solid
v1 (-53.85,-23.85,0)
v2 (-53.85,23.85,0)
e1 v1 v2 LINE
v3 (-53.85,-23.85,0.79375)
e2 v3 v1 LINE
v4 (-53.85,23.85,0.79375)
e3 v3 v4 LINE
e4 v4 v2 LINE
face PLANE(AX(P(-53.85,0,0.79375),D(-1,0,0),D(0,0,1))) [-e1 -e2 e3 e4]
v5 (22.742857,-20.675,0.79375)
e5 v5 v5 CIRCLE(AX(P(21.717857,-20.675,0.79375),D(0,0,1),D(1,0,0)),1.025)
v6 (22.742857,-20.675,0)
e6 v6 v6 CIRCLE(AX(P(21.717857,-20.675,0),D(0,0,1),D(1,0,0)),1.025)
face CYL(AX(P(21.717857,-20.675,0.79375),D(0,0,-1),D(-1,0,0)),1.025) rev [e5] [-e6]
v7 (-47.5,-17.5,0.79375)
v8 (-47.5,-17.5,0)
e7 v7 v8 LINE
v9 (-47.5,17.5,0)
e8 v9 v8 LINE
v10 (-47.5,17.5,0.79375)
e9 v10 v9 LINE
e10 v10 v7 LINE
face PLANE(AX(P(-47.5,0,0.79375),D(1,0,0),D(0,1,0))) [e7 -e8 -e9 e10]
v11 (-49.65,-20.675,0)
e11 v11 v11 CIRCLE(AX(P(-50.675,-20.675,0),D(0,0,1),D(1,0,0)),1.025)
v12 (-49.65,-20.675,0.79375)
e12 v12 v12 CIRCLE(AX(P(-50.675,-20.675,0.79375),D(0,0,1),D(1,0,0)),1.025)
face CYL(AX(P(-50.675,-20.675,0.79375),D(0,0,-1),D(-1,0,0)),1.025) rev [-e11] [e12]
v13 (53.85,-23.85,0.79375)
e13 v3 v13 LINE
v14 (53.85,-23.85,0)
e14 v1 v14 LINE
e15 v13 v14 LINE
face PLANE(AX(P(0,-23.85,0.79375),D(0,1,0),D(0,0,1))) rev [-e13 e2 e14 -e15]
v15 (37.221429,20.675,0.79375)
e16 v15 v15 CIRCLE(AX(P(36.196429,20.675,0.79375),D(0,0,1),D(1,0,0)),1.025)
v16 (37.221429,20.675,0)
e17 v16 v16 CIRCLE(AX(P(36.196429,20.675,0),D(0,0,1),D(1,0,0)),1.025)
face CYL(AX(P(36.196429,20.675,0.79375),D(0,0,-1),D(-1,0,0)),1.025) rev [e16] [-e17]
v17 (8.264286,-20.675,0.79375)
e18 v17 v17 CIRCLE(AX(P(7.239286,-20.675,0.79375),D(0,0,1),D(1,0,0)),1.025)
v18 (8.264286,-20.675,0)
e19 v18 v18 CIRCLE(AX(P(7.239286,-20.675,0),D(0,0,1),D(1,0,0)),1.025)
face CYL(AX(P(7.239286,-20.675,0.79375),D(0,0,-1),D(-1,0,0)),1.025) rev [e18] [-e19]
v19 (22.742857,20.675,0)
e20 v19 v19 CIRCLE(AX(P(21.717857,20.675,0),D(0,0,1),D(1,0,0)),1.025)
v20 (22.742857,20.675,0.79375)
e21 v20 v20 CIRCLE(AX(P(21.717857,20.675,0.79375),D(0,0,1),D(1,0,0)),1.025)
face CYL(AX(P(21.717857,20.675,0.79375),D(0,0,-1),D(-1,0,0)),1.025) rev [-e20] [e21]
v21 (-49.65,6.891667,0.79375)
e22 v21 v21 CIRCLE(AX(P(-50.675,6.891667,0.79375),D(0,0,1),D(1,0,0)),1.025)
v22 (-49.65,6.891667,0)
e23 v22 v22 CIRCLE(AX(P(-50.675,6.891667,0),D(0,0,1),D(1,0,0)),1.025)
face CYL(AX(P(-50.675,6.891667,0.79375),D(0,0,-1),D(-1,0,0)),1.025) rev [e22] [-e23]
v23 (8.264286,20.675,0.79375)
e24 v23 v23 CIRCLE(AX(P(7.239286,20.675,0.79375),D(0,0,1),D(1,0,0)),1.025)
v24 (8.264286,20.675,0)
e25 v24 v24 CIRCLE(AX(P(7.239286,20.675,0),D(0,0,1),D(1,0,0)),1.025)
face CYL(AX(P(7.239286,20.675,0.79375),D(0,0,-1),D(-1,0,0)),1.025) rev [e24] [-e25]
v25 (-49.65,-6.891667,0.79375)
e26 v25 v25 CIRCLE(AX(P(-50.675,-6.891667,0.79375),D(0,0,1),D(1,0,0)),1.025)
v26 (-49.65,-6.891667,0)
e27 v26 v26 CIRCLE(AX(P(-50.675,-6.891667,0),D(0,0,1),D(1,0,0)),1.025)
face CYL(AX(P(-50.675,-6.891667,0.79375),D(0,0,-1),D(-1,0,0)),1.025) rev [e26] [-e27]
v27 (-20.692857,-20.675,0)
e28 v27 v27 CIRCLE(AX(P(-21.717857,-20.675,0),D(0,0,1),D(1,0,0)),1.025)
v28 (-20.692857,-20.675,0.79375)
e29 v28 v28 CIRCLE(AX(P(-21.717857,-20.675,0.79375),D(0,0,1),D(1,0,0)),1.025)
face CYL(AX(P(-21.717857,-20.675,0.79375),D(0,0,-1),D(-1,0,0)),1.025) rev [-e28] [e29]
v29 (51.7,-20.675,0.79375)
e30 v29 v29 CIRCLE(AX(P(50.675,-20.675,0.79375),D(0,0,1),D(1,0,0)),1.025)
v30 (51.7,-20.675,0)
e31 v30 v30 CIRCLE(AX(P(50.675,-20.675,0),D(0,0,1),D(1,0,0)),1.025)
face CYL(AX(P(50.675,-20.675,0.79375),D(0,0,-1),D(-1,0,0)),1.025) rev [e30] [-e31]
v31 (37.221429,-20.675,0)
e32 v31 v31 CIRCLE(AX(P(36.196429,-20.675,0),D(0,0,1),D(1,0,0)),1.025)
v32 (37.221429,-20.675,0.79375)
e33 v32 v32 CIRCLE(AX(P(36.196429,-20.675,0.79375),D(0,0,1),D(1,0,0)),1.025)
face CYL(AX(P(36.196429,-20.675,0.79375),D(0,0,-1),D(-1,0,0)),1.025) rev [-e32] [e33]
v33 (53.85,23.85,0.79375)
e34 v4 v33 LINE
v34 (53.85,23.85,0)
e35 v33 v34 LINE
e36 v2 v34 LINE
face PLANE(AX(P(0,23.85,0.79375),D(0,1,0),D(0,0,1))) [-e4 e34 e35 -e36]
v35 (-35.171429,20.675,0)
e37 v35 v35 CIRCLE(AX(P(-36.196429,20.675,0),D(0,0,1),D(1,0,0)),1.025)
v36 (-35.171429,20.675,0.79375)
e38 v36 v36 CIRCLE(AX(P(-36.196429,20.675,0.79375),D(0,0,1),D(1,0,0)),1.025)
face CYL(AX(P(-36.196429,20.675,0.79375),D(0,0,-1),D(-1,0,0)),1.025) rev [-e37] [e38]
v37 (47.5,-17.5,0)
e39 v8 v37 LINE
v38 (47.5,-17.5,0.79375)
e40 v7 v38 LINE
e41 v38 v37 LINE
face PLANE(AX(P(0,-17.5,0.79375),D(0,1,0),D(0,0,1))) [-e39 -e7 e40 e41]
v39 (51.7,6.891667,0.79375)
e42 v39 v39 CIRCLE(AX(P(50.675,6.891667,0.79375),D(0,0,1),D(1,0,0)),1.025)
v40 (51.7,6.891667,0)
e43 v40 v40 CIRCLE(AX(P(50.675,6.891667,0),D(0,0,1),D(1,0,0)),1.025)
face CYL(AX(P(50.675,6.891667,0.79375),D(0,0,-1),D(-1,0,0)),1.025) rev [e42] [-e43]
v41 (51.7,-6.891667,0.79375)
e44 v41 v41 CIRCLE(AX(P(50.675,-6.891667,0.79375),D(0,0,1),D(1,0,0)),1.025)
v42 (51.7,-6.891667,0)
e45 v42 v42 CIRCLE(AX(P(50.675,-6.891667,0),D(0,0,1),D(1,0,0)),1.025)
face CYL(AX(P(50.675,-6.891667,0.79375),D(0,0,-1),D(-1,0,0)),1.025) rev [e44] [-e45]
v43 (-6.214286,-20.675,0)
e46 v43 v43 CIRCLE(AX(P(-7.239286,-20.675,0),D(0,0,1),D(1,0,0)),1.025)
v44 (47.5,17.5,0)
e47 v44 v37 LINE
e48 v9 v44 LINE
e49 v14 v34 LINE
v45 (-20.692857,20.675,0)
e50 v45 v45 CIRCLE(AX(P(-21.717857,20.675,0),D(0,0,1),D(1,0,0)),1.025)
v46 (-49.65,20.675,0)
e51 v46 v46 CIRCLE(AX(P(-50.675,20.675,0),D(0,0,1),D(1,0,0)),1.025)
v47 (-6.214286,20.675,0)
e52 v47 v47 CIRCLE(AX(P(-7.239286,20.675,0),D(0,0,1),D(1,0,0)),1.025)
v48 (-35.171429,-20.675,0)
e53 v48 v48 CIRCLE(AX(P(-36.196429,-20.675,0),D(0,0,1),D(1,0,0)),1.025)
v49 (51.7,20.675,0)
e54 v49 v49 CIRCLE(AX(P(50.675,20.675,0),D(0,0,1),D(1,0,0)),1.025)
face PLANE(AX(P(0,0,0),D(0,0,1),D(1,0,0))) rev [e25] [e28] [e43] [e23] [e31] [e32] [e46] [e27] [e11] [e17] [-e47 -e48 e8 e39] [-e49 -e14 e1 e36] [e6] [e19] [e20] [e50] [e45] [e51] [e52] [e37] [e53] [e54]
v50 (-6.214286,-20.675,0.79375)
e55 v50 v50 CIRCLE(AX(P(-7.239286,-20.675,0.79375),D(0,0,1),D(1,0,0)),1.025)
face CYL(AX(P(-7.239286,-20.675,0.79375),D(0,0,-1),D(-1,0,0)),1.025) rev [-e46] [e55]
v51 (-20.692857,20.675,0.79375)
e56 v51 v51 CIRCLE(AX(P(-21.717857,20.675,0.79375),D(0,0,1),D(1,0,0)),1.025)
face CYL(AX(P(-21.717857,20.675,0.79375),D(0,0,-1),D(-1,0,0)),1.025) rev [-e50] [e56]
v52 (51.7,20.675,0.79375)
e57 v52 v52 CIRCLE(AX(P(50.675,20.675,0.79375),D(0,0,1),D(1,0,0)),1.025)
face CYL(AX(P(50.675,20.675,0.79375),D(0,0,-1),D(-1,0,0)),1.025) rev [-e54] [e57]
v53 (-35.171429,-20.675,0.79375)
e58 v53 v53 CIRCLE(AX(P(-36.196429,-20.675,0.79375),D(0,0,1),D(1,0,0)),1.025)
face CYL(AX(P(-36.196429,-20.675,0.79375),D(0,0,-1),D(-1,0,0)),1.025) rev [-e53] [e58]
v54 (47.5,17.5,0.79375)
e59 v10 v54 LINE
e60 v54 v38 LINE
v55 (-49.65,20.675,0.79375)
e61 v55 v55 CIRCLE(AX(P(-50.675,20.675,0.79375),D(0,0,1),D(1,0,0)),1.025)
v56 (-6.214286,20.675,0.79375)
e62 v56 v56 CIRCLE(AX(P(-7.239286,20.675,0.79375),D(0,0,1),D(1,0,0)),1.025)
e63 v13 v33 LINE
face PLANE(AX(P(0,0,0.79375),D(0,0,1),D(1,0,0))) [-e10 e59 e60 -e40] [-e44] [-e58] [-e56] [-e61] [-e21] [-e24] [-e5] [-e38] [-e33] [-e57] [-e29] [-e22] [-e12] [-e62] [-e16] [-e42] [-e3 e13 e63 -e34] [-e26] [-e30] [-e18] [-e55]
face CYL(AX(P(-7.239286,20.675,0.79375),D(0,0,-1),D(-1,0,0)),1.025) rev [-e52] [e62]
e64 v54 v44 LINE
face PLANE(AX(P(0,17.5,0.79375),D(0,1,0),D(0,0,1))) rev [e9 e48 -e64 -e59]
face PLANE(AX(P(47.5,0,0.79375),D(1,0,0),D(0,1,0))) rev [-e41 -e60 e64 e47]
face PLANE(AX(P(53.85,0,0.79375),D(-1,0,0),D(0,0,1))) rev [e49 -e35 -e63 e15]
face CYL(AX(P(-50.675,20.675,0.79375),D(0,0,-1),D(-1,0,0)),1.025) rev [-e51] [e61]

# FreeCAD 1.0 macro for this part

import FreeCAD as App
import Part
import Sketcher
Q = App.Units.Quantity

doc = App.newDocument("Part")
params = doc.addObject("Spreadsheet::Sheet", "Params")
for row, (alias, value) in enumerate([
    ("sketch1_diameter", "2.05 mm"),
    ("sketch1_width", "95 mm"),
    ("sketch1_height", "35 mm"),
    ("sketch1_width2", "107.7 mm"),
    ("sketch1_height2", "47.7 mm"),
    ("pad1_length", "0.79375 mm"),
], start=1):
    params.set(f"A{row}", alias)
    params.set(f"B{row}", "=" + value)
    params.setAlias(f"B{row}", alias)

body = doc.addObject("PartDesign::Body", "Body")

sketch1 = doc.addObject("Sketcher::SketchObject", "Sketch")
body.addObject(sketch1)
sketch1.AttachmentSupport = (doc.XY_Plane, [""])
sketch1.MapMode = "FlatFace"
sketch1.addGeometry([
    Part.LineSegment(App.Vector(-53.85, 23.85, 0), App.Vector(-53.85, -23.85, 0)),
    Part.LineSegment(App.Vector(-53.85, -23.85, 0), App.Vector(53.85, -23.85, 0)),
    Part.LineSegment(App.Vector(53.85, -23.85, 0), App.Vector(53.85, 23.85, 0)),
    Part.LineSegment(App.Vector(53.85, 23.85, 0), App.Vector(-53.85, 23.85, 0)),
    Part.Circle(App.Vector(-50.675, -20.675, 0), App.Vector(0, 0, 1), 1.025),
    Part.Circle(App.Vector(-36.196429, -20.675, 0), App.Vector(0, 0, 1), 1.025),
    Part.Circle(App.Vector(-21.717857, -20.675, 0), App.Vector(0, 0, 1), 1.025),
    Part.Circle(App.Vector(-7.239286, -20.675, 0), App.Vector(0, 0, 1), 1.025),
    Part.Circle(App.Vector(-50.675, -6.891667, 0), App.Vector(0, 0, 1), 1.025),
    Part.Circle(App.Vector(7.239286, -20.675, 0), App.Vector(0, 0, 1), 1.025),
    Part.Circle(App.Vector(21.717857, -20.675, 0), App.Vector(0, 0, 1), 1.025),
    Part.Circle(App.Vector(36.196429, -20.675, 0), App.Vector(0, 0, 1), 1.025),
    Part.Circle(App.Vector(50.675, -20.675, 0), App.Vector(0, 0, 1), 1.025),
    Part.Circle(App.Vector(50.675, -6.891667, 0), App.Vector(0, 0, 1), 1.025),
    Part.Circle(App.Vector(-50.675, 6.891667, 0), App.Vector(0, 0, 1), 1.025),
    Part.Circle(App.Vector(-50.675, 20.675, 0), App.Vector(0, 0, 1), 1.025),
    Part.Circle(App.Vector(-36.196429, 20.675, 0), App.Vector(0, 0, 1), 1.025),
    Part.Circle(App.Vector(-21.717857, 20.675, 0), App.Vector(0, 0, 1), 1.025),
    Part.Circle(App.Vector(-7.239286, 20.675, 0), App.Vector(0, 0, 1), 1.025),
    Part.LineSegment(App.Vector(47.5, -17.5, 0), App.Vector(-47.5, -17.5, 0)),
    Part.LineSegment(App.Vector(-47.5, -17.5, 0), App.Vector(-47.5, 17.5, 0)),
    Part.LineSegment(App.Vector(-47.5, 17.5, 0), App.Vector(47.5, 17.5, 0)),
    Part.LineSegment(App.Vector(47.5, 17.5, 0), App.Vector(47.5, -17.5, 0)),
    Part.Circle(App.Vector(50.675, 6.891667, 0), App.Vector(0, 0, 1), 1.025),
    Part.Circle(App.Vector(7.239286, 20.675, 0), App.Vector(0, 0, 1), 1.025),
    Part.Circle(App.Vector(21.717857, 20.675, 0), App.Vector(0, 0, 1), 1.025),
    Part.Circle(App.Vector(36.196429, 20.675, 0), App.Vector(0, 0, 1), 1.025),
    Part.Circle(App.Vector(50.675, 20.675, 0), App.Vector(0, 0, 1), 1.025),
], False)
sketch1.addConstraint([
    Sketcher.Constraint("Coincident", 0, 2, 1, 1),
    Sketcher.Constraint("Coincident", 1, 2, 2, 1),
    Sketcher.Constraint("Coincident", 2, 2, 3, 1),
    Sketcher.Constraint("Coincident", 3, 2, 0, 1),
    Sketcher.Constraint("Coincident", 19, 2, 20, 1),
    Sketcher.Constraint("Coincident", 20, 2, 21, 1),
    Sketcher.Constraint("Coincident", 21, 2, 22, 1),
    Sketcher.Constraint("Coincident", 22, 2, 19, 1),
    Sketcher.Constraint("Vertical", 0),
    Sketcher.Constraint("Horizontal", 1),
    Sketcher.Constraint("Vertical", 2),
    Sketcher.Constraint("Horizontal", 3),
    Sketcher.Constraint("Horizontal", 19),
    Sketcher.Constraint("Vertical", 20),
    Sketcher.Constraint("Horizontal", 21),
    Sketcher.Constraint("Vertical", 22),
    Sketcher.Constraint("Equal", 4, 5),
    Sketcher.Constraint("Equal", 5, 6),
    Sketcher.Constraint("Equal", 6, 7),
    Sketcher.Constraint("Equal", 7, 8),
    Sketcher.Constraint("Equal", 8, 9),
    Sketcher.Constraint("Equal", 9, 10),
    Sketcher.Constraint("Equal", 10, 11),
    Sketcher.Constraint("Equal", 11, 12),
    Sketcher.Constraint("Equal", 12, 13),
    Sketcher.Constraint("Equal", 13, 14),
    Sketcher.Constraint("Equal", 14, 15),
    Sketcher.Constraint("Equal", 15, 16),
    Sketcher.Constraint("Equal", 16, 17),
    Sketcher.Constraint("Equal", 17, 18),
    Sketcher.Constraint("Equal", 18, 23),
    Sketcher.Constraint("Equal", 23, 24),
    Sketcher.Constraint("Equal", 24, 25),
    Sketcher.Constraint("Equal", 25, 26),
    Sketcher.Constraint("Equal", 26, 27),
    Sketcher.Constraint("Symmetric", 13, 3, 14, 3, -1, 1),
    Sketcher.Constraint("Symmetric", 12, 3, 15, 3, -1, 1),
    Sketcher.Constraint("Symmetric", 11, 3, 16, 3, -1, 1),
    Sketcher.Constraint("Symmetric", 10, 3, 17, 3, -1, 1),
    Sketcher.Constraint("Symmetric", 9, 3, 18, 3, -1, 1),
    Sketcher.Constraint("Symmetric", 8, 3, 23, 3, -1, 1),
    Sketcher.Constraint("Symmetric", 7, 3, 24, 3, -1, 1),
    Sketcher.Constraint("Symmetric", 6, 3, 25, 3, -1, 1),
    Sketcher.Constraint("Symmetric", 5, 3, 26, 3, -1, 1),
    Sketcher.Constraint("Symmetric", 4, 3, 27, 3, -1, 1),
    Sketcher.Constraint("Symmetric", 0, 2, 2, 2, -1, 1),
    Sketcher.Constraint("Symmetric", 19, 2, 21, 2, -1, 1),
    Sketcher.Constraint("Symmetric", 7, 3, 9, 3, -2),
    Sketcher.Constraint("Symmetric", 6, 3, 10, 3, -2),
    Sketcher.Constraint("Symmetric", 5, 3, 11, 3, -2),
    Sketcher.Constraint("Symmetric", 4, 3, 12, 3, -2),
    Sketcher.Constraint("Symmetric", 8, 3, 13, 3, -2),
    Sketcher.Constraint("Horizontal", 4, 3, 5, 3),
    Sketcher.Constraint("Horizontal", 5, 3, 6, 3),
    Sketcher.Constraint("Horizontal", 6, 3, 7, 3),
    Sketcher.Constraint("Vertical", 4, 3, 8, 3),
    Sketcher.Constraint("Diameter", 4, Q("2.05 mm")),
    Sketcher.Constraint("DistanceX", 19, 2, 19, 1, Q("95 mm")),
    Sketcher.Constraint("DistanceY", 20, 1, 20, 2, Q("35 mm")),
    Sketcher.Constraint("DistanceX", 1, 1, 1, 2, Q("107.7 mm")),
    Sketcher.Constraint("DistanceY", 0, 2, 0, 1, Q("47.7 mm")),
    Sketcher.Constraint("DistanceY", 4, 3, 15, 3, Q("41.35 mm")),
    Sketcher.Constraint("DistanceX", 4, 3, -1, 1, Q("50.675 mm")),
    Sketcher.Constraint("DistanceX", 5, 3, -1, 1, Q("36.196429 mm")),
    Sketcher.Constraint("DistanceX", 5, 3, 6, 3, Q("14.478571 mm")),
    Sketcher.Constraint("DistanceX", 6, 3, 7, 3, Q("14.478571 mm")),
    Sketcher.Constraint("DistanceY", 8, 3, -1, 1, Q("6.891667 mm")),
])
sketch1.setExpression("Constraints[56]", "Params.sketch1_diameter")
sketch1.setExpression("Constraints[57]", "Params.sketch1_width")
sketch1.setExpression("Constraints[58]", "Params.sketch1_height")
sketch1.setExpression("Constraints[59]", "Params.sketch1_width2")
sketch1.setExpression("Constraints[60]", "Params.sketch1_height2")
pad1 = doc.addObject("PartDesign::Pad", "Pad")
body.addObject(pad1)
pad1.Profile = sketch1
pad1.setExpression("Length", "Params.pad1_length")

doc.recompute()
